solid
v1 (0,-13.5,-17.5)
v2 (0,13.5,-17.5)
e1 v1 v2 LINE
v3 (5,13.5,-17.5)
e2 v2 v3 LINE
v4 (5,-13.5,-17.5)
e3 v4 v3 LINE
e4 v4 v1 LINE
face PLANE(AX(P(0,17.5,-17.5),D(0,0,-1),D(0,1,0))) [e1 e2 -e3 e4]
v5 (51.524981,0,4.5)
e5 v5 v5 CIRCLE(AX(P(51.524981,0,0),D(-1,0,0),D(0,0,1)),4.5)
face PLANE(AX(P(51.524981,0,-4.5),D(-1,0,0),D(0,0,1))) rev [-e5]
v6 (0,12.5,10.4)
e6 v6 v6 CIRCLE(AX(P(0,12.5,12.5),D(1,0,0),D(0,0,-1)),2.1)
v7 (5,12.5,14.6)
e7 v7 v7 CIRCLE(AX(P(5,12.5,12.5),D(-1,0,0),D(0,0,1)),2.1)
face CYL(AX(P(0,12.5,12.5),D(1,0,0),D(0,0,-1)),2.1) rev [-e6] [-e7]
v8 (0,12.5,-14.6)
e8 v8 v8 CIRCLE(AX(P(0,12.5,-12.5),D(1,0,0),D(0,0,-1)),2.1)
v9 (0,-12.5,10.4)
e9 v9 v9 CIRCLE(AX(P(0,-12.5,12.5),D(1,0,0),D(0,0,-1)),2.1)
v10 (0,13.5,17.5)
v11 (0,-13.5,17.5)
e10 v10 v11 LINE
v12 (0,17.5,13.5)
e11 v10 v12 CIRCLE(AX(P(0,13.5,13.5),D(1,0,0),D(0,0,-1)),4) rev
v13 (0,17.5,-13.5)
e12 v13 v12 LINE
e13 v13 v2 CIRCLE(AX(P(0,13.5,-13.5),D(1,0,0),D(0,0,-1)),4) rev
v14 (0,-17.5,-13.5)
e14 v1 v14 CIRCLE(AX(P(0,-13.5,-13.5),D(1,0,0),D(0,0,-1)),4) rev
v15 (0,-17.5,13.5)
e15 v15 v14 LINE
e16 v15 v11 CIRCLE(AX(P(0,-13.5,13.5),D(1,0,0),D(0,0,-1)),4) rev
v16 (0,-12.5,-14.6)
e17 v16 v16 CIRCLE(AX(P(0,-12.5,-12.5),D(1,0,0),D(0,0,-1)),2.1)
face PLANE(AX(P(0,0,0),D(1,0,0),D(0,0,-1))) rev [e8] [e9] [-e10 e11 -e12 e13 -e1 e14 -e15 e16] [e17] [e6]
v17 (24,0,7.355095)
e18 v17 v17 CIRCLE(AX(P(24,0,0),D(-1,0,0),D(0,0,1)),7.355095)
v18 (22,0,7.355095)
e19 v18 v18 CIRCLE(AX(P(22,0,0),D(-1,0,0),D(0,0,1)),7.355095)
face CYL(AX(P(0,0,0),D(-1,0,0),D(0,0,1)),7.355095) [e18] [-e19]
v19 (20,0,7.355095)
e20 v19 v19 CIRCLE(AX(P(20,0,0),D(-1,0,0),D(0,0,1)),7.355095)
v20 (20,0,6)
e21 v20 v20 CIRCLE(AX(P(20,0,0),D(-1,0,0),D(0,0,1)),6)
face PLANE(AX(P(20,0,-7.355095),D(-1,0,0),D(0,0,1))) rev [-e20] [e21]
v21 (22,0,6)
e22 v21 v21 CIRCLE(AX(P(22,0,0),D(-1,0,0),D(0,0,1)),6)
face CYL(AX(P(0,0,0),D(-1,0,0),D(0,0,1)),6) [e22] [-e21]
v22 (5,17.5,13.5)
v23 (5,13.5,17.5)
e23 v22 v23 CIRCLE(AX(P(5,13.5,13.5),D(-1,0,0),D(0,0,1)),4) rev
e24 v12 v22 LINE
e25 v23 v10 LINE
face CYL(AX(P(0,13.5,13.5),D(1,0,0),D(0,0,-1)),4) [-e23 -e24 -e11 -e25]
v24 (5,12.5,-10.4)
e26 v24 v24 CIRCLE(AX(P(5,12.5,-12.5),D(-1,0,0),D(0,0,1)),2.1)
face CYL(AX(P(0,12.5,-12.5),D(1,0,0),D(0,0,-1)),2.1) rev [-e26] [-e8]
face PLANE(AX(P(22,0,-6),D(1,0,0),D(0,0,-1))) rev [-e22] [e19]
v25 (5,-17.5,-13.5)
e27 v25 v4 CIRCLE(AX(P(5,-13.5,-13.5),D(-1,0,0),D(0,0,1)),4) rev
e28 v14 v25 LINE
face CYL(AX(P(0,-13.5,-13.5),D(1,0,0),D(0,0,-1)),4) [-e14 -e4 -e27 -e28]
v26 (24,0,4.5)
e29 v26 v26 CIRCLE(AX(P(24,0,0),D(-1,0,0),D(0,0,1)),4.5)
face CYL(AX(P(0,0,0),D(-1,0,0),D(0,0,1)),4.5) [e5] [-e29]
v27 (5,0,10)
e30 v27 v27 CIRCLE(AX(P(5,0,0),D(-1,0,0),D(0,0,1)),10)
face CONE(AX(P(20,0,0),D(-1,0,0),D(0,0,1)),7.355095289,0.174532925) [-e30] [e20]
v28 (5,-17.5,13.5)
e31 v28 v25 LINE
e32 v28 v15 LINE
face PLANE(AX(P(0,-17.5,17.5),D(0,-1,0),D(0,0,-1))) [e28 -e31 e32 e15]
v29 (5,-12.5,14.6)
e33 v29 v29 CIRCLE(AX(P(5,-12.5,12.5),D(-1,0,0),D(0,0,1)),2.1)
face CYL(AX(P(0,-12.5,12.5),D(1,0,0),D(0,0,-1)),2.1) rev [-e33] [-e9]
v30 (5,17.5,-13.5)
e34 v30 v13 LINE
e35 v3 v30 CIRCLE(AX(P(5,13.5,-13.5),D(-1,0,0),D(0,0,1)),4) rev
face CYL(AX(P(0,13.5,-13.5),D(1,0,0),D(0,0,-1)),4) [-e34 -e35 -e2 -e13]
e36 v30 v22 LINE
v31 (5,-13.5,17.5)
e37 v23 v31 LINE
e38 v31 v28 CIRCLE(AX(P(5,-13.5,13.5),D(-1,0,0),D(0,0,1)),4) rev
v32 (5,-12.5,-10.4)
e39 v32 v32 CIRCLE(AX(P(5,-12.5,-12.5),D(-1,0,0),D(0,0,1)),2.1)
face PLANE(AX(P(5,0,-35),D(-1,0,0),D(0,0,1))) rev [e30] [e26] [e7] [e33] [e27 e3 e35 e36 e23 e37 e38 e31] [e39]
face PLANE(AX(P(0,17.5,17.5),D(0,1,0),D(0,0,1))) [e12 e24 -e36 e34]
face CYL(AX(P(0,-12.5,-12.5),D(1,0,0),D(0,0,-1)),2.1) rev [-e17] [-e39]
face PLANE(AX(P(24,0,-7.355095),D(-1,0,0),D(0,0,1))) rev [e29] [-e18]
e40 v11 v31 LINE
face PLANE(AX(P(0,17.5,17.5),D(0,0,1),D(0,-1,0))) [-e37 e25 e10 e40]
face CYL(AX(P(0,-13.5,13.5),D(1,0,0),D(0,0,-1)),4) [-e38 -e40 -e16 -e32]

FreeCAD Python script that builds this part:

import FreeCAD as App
import Part
import Sketcher
from FreeCAD import Vector
Q = App.Units.Quantity


def edges_at(feature, points):
    """Names of the edges that pass closest to the given points."""
    edges = feature.Shape.Edges
    near = lambda p: min(range(len(edges)), key=lambda i: edges[i].distToShape(Part.Vertex(*p))[0])
    return sorted({f"Edge{near(p) + 1}" for p in points})

doc = App.newDocument("Part")
body = doc.addObject("PartDesign::Body", "Body")

# Sketch on XZ plane
sketch1 = doc.addObject("Sketcher::SketchObject", "Sketch")
body.addObject(sketch1)
sketch1.AttachmentSupport = (doc.XZ_Plane, [""])
sketch1.MapMode = "FlatFace"
sketch1.addGeometry([
    Part.LineSegment(Vector(0, -35, 0), Vector(0, 0, 0)),  # 0
    Part.LineSegment(Vector(0, 0, 0), Vector(51.524981, 0, 0)),  # 1
    Part.LineSegment(Vector(51.524981, 0, 0), Vector(51.524981, -4.5, 0)),  # 2
    Part.LineSegment(Vector(51.524981, -4.5, 0), Vector(24, -4.5, 0)),  # 3
    Part.LineSegment(Vector(24, -4.5, 0), Vector(24, -7.355095, 0)),  # 4
    Part.LineSegment(Vector(24, -7.355095, 0), Vector(22, -7.355095, 0)),  # 5
    Part.LineSegment(Vector(22, -7.355095, 0), Vector(22, -6, 0)),  # 6
    Part.LineSegment(Vector(22, -6, 0), Vector(20, -6, 0)),  # 7
    Part.LineSegment(Vector(20, -6, 0), Vector(20, -7.355095, 0)),  # 8
    Part.LineSegment(Vector(20, -7.355095, 0), Vector(5, -10, 0)),  # 9
    Part.LineSegment(Vector(5, -10, 0), Vector(5, -35, 0)),  # 10
    Part.LineSegment(Vector(5, -35, 0), Vector(0, -35, 0)),  # 11
], False)
sketch1.addConstraint([
    Sketcher.Constraint("Coincident", 0, 2, 1, 1),
    Sketcher.Constraint("Coincident", 1, 2, 2, 1),
    Sketcher.Constraint("Coincident", 2, 2, 3, 1),
    Sketcher.Constraint("Coincident", 3, 2, 4, 1),
    Sketcher.Constraint("Coincident", 4, 2, 5, 1),
    Sketcher.Constraint("Coincident", 5, 2, 6, 1),
    Sketcher.Constraint("Coincident", 6, 2, 7, 1),
    Sketcher.Constraint("Coincident", 7, 2, 8, 1),
    Sketcher.Constraint("Coincident", 8, 2, 9, 1),
    Sketcher.Constraint("Coincident", 9, 2, 10, 1),
    Sketcher.Constraint("Coincident", 10, 2, 11, 1),
    Sketcher.Constraint("Coincident", 11, 2, 0, 1),
    Sketcher.Constraint("Vertical", 0),
    Sketcher.Constraint("Horizontal", 1),
    Sketcher.Constraint("Vertical", 2),
    Sketcher.Constraint("Horizontal", 3),
    Sketcher.Constraint("Vertical", 4),
    Sketcher.Constraint("Horizontal", 5),
    Sketcher.Constraint("Vertical", 6),
    Sketcher.Constraint("Horizontal", 7),
    Sketcher.Constraint("Vertical", 8),
    Sketcher.Constraint("Vertical", 10),
    Sketcher.Constraint("Horizontal", 11),
    Sketcher.Constraint("Coincident", 0, 2, -1, 1),
    Sketcher.Constraint("Horizontal", 5, 2, 8, 2),
    Sketcher.Constraint("Equal", 5, 7),
    Sketcher.Constraint("DistanceX", 5, 2, 5, 1, Q("2 mm")),
    Sketcher.Constraint("DistanceX", 11, 2, 11, 1, Q("5 mm")),
    Sketcher.Constraint("DistanceY", 0, 1, 0, 2, Q("35 mm")),
    Sketcher.Constraint("DistanceY", 10, 2, 10, 1, Q("25 mm")),
    Sketcher.Constraint("Angle", 9, Q("-170 deg")),
    Sketcher.Constraint("DistanceY", 2, 2, 2, 1, Q("4.5 mm")),
    Sketcher.Constraint("DistanceX", -1, 1, 3, 2, Q("24 mm")),
    Sketcher.Constraint("DistanceY", 6, 2, -1, 1, Q("6 mm")),
    Sketcher.Constraint("DistanceX", 1, 1, 1, 2, Q("51.524981 mm")),
])
revolution = doc.addObject("PartDesign::Revolution", "Revolution")
body.addObject(revolution)
revolution.Profile = sketch1
revolution.ReferenceAxis = (sketch1, ["H_Axis"])
revolution.Angle = 360

# Sketch on YZ plane
sketch2 = doc.addObject("Sketcher::SketchObject", "Sketch001")
body.addObject(sketch2)
sketch2.AttachmentSupport = (doc.YZ_Plane, [""])
sketch2.MapMode = "FlatFace"
sketch2.AttachmentOffset = App.Placement(Vector(0, 0, 5), App.Rotation())
sketch2.addGeometry([
    Part.LineSegment(Vector(47.16, 47.16, 0), Vector(-47.16, 47.16, 0)),  # 0
    Part.LineSegment(Vector(-47.16, 47.16, 0), Vector(-47.16, -47.16, 0)),  # 1
    Part.LineSegment(Vector(-47.16, -47.16, 0), Vector(47.16, -47.16, 0)),  # 2
    Part.LineSegment(Vector(47.16, -47.16, 0), Vector(47.16, 47.16, 0)),  # 3
    Part.LineSegment(Vector(-17.5, -17.5, 0), Vector(-17.5, 17.5, 0)),  # 4
    Part.LineSegment(Vector(-17.5, 17.5, 0), Vector(17.5, 17.5, 0)),  # 5
    Part.LineSegment(Vector(17.5, 17.5, 0), Vector(17.5, -17.5, 0)),  # 6
    Part.LineSegment(Vector(17.5, -17.5, 0), Vector(-17.5, -17.5, 0)),  # 7
], False)
sketch2.addConstraint([
    Sketcher.Constraint("Coincident", 0, 2, 1, 1),
    Sketcher.Constraint("Coincident", 1, 2, 2, 1),
    Sketcher.Constraint("Coincident", 2, 2, 3, 1),
    Sketcher.Constraint("Coincident", 3, 2, 0, 1),
    Sketcher.Constraint("Coincident", 4, 2, 5, 1),
    Sketcher.Constraint("Coincident", 5, 2, 6, 1),
    Sketcher.Constraint("Coincident", 6, 2, 7, 1),
    Sketcher.Constraint("Coincident", 7, 2, 4, 1),
    Sketcher.Constraint("Horizontal", 0),
    Sketcher.Constraint("Vertical", 1),
    Sketcher.Constraint("Horizontal", 2),
    Sketcher.Constraint("Vertical", 3),
    Sketcher.Constraint("Vertical", 4),
    Sketcher.Constraint("Horizontal", 5),
    Sketcher.Constraint("Vertical", 6),
    Sketcher.Constraint("Horizontal", 7),
    Sketcher.Constraint("Symmetric", 0, 2, 2, 2, -1, 1),
    Sketcher.Constraint("Symmetric", 4, 2, 6, 2, -1, 1),
    Sketcher.Constraint("Equal", 2, 1),
    Sketcher.Constraint("Equal", 7, 4),
    Sketcher.Constraint("DistanceX", 5, 1, 5, 2, Q("35 mm")),
    Sketcher.Constraint("DistanceX", 0, 2, 0, 1, Q("94.32 mm")),
])
pocket1 = doc.addObject("PartDesign::Pocket", "Pocket")
body.addObject(pocket1)
pocket1.Profile = sketch2
pocket1.Length = 5
doc.recompute()

fillet = doc.addObject("PartDesign::Fillet", "Fillet")
body.addObject(fillet)
fillet.Base = (pocket1, edges_at(pocket1, [
    (2.5, -17.5, -17.5),
    (2.5, -17.5, 17.5),
    (2.5, 17.5, 17.5),
    (2.5, 17.5, -17.5),
]))
fillet.Radius = 4

# Sketch on YZ plane
sketch3 = doc.addObject("Sketcher::SketchObject", "Sketch002")
body.addObject(sketch3)
sketch3.AttachmentSupport = (doc.YZ_Plane, [""])
sketch3.MapMode = "FlatFace"
sketch3.AttachmentOffset = App.Placement(Vector(0, 0, 5), App.Rotation())
sketch3.addGeometry([
    Part.Circle(Vector(12.5, 12.5, 0), Vector(0, 0, 1), 2.1),
    Part.Circle(Vector(12.5, -12.5, 0), Vector(0, 0, 1), 2.1),
    Part.Circle(Vector(-12.5, -12.5, 0), Vector(0, 0, 1), 2.1),
    Part.Circle(Vector(-12.5, 12.5, 0), Vector(0, 0, 1), 2.1),
], False)
sketch3.addConstraint([
    Sketcher.Constraint("Equal", 0, 1),
    Sketcher.Constraint("Equal", 1, 2),
    Sketcher.Constraint("Equal", 2, 3),
    Sketcher.Constraint("Symmetric", 0, 3, 2, 3, -1, 1),
    Sketcher.Constraint("Symmetric", 1, 3, 3, 3, -1, 1),
    Sketcher.Constraint("Symmetric", 1, 3, 2, 3, -2),
    Sketcher.Constraint("Diameter", 0, Q("4.2 mm")),
    Sketcher.Constraint("DistanceY", 1, 3, 0, 3, Q("25 mm")),
    Sketcher.Constraint("DistanceX", 2, 3, 1, 3, Q("25 mm")),
])
pocket2 = doc.addObject("PartDesign::Pocket", "Pocket001")
body.addObject(pocket2)
pocket2.Profile = sketch3
pocket2.Type = "ThroughAll"
pocket2.Midplane = True

doc.recompute()
